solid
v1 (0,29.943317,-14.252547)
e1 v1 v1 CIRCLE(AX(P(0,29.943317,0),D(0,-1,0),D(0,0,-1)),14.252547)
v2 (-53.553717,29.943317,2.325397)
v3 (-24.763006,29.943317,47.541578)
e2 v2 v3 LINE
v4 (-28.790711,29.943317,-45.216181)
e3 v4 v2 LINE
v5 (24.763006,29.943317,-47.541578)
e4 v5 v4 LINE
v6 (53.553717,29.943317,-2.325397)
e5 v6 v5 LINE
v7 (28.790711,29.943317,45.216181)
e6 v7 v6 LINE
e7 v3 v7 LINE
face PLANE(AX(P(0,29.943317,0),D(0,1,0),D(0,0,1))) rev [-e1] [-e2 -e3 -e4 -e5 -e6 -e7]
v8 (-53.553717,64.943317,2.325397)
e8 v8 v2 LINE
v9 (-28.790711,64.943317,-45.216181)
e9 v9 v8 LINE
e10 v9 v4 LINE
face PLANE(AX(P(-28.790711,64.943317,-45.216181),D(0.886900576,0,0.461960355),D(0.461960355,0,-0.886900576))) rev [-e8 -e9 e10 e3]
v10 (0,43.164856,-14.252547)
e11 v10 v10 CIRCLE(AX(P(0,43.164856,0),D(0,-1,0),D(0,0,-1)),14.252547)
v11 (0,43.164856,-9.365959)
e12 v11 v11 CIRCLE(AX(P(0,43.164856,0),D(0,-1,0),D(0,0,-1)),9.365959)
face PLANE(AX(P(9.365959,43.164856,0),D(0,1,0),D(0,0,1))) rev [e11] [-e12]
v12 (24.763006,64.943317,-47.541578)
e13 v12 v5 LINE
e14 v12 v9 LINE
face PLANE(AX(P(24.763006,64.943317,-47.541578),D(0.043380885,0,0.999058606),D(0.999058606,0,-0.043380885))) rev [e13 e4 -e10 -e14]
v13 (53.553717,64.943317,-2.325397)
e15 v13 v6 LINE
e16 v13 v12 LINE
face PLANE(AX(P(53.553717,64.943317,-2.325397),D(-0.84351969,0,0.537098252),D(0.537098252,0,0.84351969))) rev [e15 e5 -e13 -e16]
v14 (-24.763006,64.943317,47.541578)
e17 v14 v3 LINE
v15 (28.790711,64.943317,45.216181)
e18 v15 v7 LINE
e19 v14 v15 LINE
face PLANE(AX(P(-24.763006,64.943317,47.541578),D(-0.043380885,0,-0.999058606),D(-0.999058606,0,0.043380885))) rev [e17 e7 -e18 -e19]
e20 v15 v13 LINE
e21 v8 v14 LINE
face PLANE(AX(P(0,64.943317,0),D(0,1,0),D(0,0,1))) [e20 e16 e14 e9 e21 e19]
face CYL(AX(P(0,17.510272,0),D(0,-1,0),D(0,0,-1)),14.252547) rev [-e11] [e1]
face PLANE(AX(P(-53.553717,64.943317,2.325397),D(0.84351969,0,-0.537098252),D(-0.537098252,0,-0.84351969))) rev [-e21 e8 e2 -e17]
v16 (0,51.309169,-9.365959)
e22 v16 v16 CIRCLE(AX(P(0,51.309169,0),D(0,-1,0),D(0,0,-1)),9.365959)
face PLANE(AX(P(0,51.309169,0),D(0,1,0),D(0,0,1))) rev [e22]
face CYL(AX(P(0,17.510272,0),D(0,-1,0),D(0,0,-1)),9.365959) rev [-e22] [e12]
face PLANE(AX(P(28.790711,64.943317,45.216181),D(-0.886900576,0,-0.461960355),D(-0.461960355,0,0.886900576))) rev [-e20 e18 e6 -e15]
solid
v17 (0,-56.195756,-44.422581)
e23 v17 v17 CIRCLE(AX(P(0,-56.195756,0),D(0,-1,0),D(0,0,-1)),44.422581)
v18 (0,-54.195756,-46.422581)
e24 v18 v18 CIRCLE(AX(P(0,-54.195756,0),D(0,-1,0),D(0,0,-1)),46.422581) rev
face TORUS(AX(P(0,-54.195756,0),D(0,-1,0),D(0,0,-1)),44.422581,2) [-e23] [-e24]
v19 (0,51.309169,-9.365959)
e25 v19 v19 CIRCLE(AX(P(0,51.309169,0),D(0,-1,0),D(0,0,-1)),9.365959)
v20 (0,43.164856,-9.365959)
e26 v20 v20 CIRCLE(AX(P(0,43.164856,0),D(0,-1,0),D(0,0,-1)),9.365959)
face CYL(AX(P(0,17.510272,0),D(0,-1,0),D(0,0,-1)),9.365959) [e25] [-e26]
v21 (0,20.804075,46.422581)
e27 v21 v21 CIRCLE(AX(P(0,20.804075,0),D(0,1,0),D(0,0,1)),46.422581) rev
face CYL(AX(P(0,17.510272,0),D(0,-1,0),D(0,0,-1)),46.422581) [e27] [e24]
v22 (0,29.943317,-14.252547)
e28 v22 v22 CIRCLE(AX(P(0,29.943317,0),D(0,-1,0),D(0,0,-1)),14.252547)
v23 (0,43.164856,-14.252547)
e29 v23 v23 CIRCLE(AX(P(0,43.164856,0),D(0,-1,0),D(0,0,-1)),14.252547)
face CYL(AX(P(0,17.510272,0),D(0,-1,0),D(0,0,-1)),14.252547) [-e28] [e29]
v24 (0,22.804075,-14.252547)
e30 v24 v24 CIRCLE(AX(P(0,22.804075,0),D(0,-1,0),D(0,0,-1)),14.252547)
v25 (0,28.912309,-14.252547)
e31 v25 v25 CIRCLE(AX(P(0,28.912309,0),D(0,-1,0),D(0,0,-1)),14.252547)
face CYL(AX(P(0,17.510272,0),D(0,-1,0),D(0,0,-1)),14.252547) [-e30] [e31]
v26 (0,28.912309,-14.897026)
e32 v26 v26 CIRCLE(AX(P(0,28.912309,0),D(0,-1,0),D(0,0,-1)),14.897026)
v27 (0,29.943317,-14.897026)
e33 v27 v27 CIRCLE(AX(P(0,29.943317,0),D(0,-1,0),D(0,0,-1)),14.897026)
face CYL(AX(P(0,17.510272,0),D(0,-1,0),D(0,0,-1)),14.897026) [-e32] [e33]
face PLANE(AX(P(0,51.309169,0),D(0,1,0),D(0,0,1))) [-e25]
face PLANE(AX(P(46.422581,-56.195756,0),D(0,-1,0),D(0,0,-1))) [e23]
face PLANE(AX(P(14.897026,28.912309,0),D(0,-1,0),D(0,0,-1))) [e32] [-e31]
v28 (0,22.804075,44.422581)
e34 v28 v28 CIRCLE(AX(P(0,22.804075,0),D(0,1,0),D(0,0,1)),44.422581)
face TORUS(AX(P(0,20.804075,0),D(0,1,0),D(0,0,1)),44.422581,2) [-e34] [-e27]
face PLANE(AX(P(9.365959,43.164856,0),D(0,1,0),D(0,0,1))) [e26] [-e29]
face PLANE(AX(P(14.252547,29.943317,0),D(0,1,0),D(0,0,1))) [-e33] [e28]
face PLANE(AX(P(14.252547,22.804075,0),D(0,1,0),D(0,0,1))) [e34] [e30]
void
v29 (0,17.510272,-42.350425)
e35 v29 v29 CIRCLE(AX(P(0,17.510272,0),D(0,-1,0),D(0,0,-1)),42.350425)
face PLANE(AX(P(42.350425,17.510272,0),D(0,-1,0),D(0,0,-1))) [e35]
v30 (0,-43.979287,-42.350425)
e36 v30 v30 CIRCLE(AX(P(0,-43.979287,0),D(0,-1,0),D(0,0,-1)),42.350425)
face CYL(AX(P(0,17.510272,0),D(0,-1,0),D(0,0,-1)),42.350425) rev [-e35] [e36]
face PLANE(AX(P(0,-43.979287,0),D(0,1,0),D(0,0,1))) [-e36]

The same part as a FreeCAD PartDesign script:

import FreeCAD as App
import Part
import Sketcher
from FreeCAD import Vector
Q = App.Units.Quantity


def edges_at(feature, points):
    """Names of the edges that pass closest to the given points."""
    edges = feature.Shape.Edges
    near = lambda p: min(range(len(edges)), key=lambda i: edges[i].distToShape(Part.Vertex(*p))[0])
    return sorted({f"Edge{near(p) + 1}" for p in points})

doc = App.newDocument("Part")
body = doc.addObject("PartDesign::Body", "Body")

sketch1 = body.newObject("Sketcher::SketchObject", "Sketch")
sketch1.AttachmentSupport = (doc.getObject("XY_Plane"), [""])
sketch1.MapMode = "FlatFace"
sketch1.addGeometry([
    Part.LineSegment(Vector(9.365959, 51.309169, 0), Vector(0, 51.309169, 0)),
    Part.LineSegment(Vector(0, 51.309169, 0), Vector(0, 17.510272, 0)),
    Part.LineSegment(Vector(0, 17.510272, 0), Vector(42.350425, 17.510272, 0)),
    Part.LineSegment(Vector(42.350425, 17.510272, 0), Vector(42.350425, -43.979287, 0)),
    Part.LineSegment(Vector(42.350425, -43.979287, 0), Vector(0, -43.979287, 0)),
    Part.LineSegment(Vector(0, -43.979287, 0), Vector(0, -56.195756, 0)),
    Part.LineSegment(Vector(0, -56.195756, 0), Vector(46.422581, -56.195756, 0)),
    Part.LineSegment(Vector(46.422581, -56.195756, 0), Vector(46.422581, 22.804075, 0)),
    Part.LineSegment(Vector(46.422581, 22.804075, 0), Vector(14.252547, 22.804075, 0)),
    Part.LineSegment(Vector(14.252547, 22.804075, 0), Vector(14.252547, 28.912309, 0)),
    Part.LineSegment(Vector(14.252547, 28.912309, 0), Vector(14.897026, 28.912309, 0)),
    Part.LineSegment(Vector(14.897026, 28.912309, 0), Vector(14.897026, 29.943317, 0)),
    Part.LineSegment(Vector(14.897026, 29.943317, 0), Vector(14.252547, 29.943317, 0)),
    Part.LineSegment(Vector(14.252547, 29.943317, 0), Vector(14.252547, 43.164856, 0)),
    Part.LineSegment(Vector(14.252547, 43.164856, 0), Vector(9.365959, 43.164856, 0)),
    Part.LineSegment(Vector(9.365959, 43.164856, 0), Vector(9.365959, 51.309169, 0)),
], False)
sketch1.addConstraint([
    Sketcher.Constraint("Coincident", 0, 2, 1, 1),
    Sketcher.Constraint("Coincident", 1, 2, 2, 1),
    Sketcher.Constraint("Coincident", 2, 2, 3, 1),
    Sketcher.Constraint("Coincident", 3, 2, 4, 1),
    Sketcher.Constraint("Coincident", 4, 2, 5, 1),
    Sketcher.Constraint("Coincident", 5, 2, 6, 1),
    Sketcher.Constraint("Coincident", 6, 2, 7, 1),
    Sketcher.Constraint("Coincident", 7, 2, 8, 1),
    Sketcher.Constraint("Coincident", 8, 2, 9, 1),
    Sketcher.Constraint("Coincident", 9, 2, 10, 1),
    Sketcher.Constraint("Coincident", 10, 2, 11, 1),
    Sketcher.Constraint("Coincident", 11, 2, 12, 1),
    Sketcher.Constraint("Coincident", 12, 2, 13, 1),
    Sketcher.Constraint("Coincident", 13, 2, 14, 1),
    Sketcher.Constraint("Coincident", 14, 2, 15, 1),
    Sketcher.Constraint("Coincident", 15, 2, 0, 1),
    Sketcher.Constraint("Horizontal", 0),
    Sketcher.Constraint("Vertical", 1),
    Sketcher.Constraint("Horizontal", 2),
    Sketcher.Constraint("Vertical", 3),
    Sketcher.Constraint("Horizontal", 4),
    Sketcher.Constraint("Vertical", 5),
    Sketcher.Constraint("Horizontal", 6),
    Sketcher.Constraint("Vertical", 7),
    Sketcher.Constraint("Horizontal", 8),
    Sketcher.Constraint("Vertical", 9),
    Sketcher.Constraint("Horizontal", 10),
    Sketcher.Constraint("Vertical", 11),
    Sketcher.Constraint("Horizontal", 12),
    Sketcher.Constraint("Vertical", 13),
    Sketcher.Constraint("Horizontal", 14),
    Sketcher.Constraint("Vertical", 15),
    Sketcher.Constraint("PointOnObject", 0, 2, -2),
    Sketcher.Constraint("PointOnObject", 4, 2, -2),
    Sketcher.Constraint("Vertical", 9, 2, 12, 2),
    Sketcher.Constraint("DistanceX", 0, 2, 0, 1, Q("9.365959 mm")),
    Sketcher.Constraint("DistanceX", 6, 1, 6, 2, Q("46.422581 mm")),
    Sketcher.Constraint("DistanceX", 10, 1, 10, 2, Q("0.64448 mm")),
    Sketcher.Constraint("DistanceY", 3, 2, 3, 1, Q("61.489559 mm")),
    Sketcher.Constraint("DistanceY", 5, 2, 5, 1, Q("12.216469 mm")),
    Sketcher.Constraint("DistanceY", 7, 1, 7, 2, Q("78.999831 mm")),
    Sketcher.Constraint("DistanceY", 13, 1, 13, 2, Q("13.221539 mm")),
    Sketcher.Constraint("DistanceX", 10, 2, 2, 2, Q("27.453399 mm")),
    Sketcher.Constraint("DistanceX", 2, 1, 2, 2, Q("42.350425 mm")),
    Sketcher.Constraint("DistanceY", 1, 2, 1, 1, Q("33.798897 mm")),
    Sketcher.Constraint("DistanceY", 9, 1, 9, 2, Q("6.108234 mm")),
    Sketcher.Constraint("DistanceY", 11, 1, 11, 2, Q("1.031008 mm")),
    Sketcher.Constraint("DistanceY", -1, 1, 0, 2, Q("51.309169 mm")),
])
revolution = body.newObject("PartDesign::Revolution", "Revolution")
revolution.Profile = sketch1
revolution.ReferenceAxis = (sketch1, ["V_Axis"])
revolution.Angle = 360
doc.recompute()

fillet = body.newObject("PartDesign::Fillet", "Fillet")
fillet.Base = (revolution, edges_at(revolution, [(-46.423, -56.196, 0), (-46.423, 22.804, 0)]))
fillet.Radius = 2
body2 = doc.addObject("PartDesign::Body", "Body001")

sketch2 = body2.newObject("Sketcher::SketchObject", "Sketch001")
sketch2.AttachmentSupport = (doc.getObject("XZ_Plane001"), [""])
sketch2.MapMode = "FlatFace"
sketch2.AttachmentOffset = App.Placement(Vector(0, 0, -29.943317), App.Rotation())
sketch2.addGeometry([
    Part.LineSegment(Vector(28.790711, 45.216181, 0), Vector(53.553717, -2.325397, 0)),
    Part.LineSegment(Vector(53.553717, -2.325397, 0), Vector(24.763006, -47.541578, 0)),
    Part.LineSegment(Vector(24.763006, -47.541578, 0), Vector(-28.790711, -45.216181, 0)),
    Part.LineSegment(Vector(-28.790711, -45.216181, 0), Vector(-53.553717, 2.325397, 0)),
    Part.LineSegment(Vector(-53.553717, 2.325397, 0), Vector(-24.763006, 47.541578, 0)),
    Part.LineSegment(Vector(-24.763006, 47.541578, 0), Vector(28.790711, 45.216181, 0)),
], False)
sketch2.addConstraint([
    Sketcher.Constraint("Coincident", 0, 2, 1, 1),
    Sketcher.Constraint("Coincident", 1, 2, 2, 1),
    Sketcher.Constraint("Coincident", 2, 2, 3, 1),
    Sketcher.Constraint("Coincident", 3, 2, 4, 1),
    Sketcher.Constraint("Coincident", 4, 2, 5, 1),
    Sketcher.Constraint("Coincident", 5, 2, 0, 1),
    Sketcher.Constraint("Symmetric", 0, 2, 3, 2, -1, 1),
    Sketcher.Constraint("Symmetric", 1, 2, 4, 2, -1, 1),
    Sketcher.Constraint("Symmetric", 2, 2, 5, 2, -1, 1),
    Sketcher.Constraint("Equal", 0, 1),
    Sketcher.Constraint("Equal", 1, 2),
    Sketcher.Constraint("Distance", 0, Q("53.604179 mm")),
    Sketcher.Constraint("DistanceX", 2, 2, -1, 1, Q("28.790711 mm")),
    Sketcher.Constraint("DistanceY", 2, 2, -1, 1, Q("45.216181 mm")),
    Sketcher.Constraint("DistanceX", 1, 2, 0, 2, Q("28.790711 mm")),
])
pad1 = body2.newObject("PartDesign::Pad", "Pad")
pad1.Profile = sketch2
pad1.Length = 35
pad1.Reversed = True

sketch3 = body2.newObject("Sketcher::SketchObject", "Sketch002")
sketch3.AttachmentSupport = (doc.getObject("XY_Plane001"), [""])
sketch3.MapMode = "FlatFace"
sketch3.addGeometry([
    Part.LineSegment(Vector(9.365959, 51.309169, 0), Vector(0, 51.309169, 0)),
    Part.LineSegment(Vector(0, 51.309169, 0), Vector(0, 17.510272, 0)),
    Part.LineSegment(Vector(0, 17.510272, 0), Vector(42.350425, 17.510272, 0)),
    Part.LineSegment(Vector(42.350425, 17.510272, 0), Vector(42.350425, -43.979287, 0)),
    Part.LineSegment(Vector(42.350425, -43.979287, 0), Vector(0, -43.979287, 0)),
    Part.LineSegment(Vector(0, -43.979287, 0), Vector(0, -56.195756, 0)),
    Part.LineSegment(Vector(0, -56.195756, 0), Vector(46.422581, -56.195756, 0)),
    Part.LineSegment(Vector(46.422581, -56.195756, 0), Vector(46.422581, 22.804075, 0)),
    Part.LineSegment(Vector(46.422581, 22.804075, 0), Vector(14.252547, 22.804075, 0)),
    Part.LineSegment(Vector(14.252547, 22.804075, 0), Vector(14.252547, 28.912309, 0)),
    Part.LineSegment(Vector(14.252547, 28.912309, 0), Vector(14.897026, 28.912309, 0)),
    Part.LineSegment(Vector(14.897026, 28.912309, 0), Vector(14.897026, 29.943317, 0)),
    Part.LineSegment(Vector(14.897026, 29.943317, 0), Vector(14.252547, 29.943317, 0)),
    Part.LineSegment(Vector(14.252547, 29.943317, 0), Vector(14.252547, 43.164856, 0)),
    Part.LineSegment(Vector(14.252547, 43.164856, 0), Vector(9.365959, 43.164856, 0)),
    Part.LineSegment(Vector(9.365959, 43.164856, 0), Vector(9.365959, 51.309169, 0)),
], False)
sketch3.addConstraint([
    Sketcher.Constraint("Coincident", 0, 2, 1, 1),
    Sketcher.Constraint("Coincident", 1, 2, 2, 1),
    Sketcher.Constraint("Coincident", 2, 2, 3, 1),
    Sketcher.Constraint("Coincident", 3, 2, 4, 1),
    Sketcher.Constraint("Coincident", 4, 2, 5, 1),
    Sketcher.Constraint("Coincident", 5, 2, 6, 1),
    Sketcher.Constraint("Coincident", 6, 2, 7, 1),
    Sketcher.Constraint("Coincident", 7, 2, 8, 1),
    Sketcher.Constraint("Coincident", 8, 2, 9, 1),
    Sketcher.Constraint("Coincident", 9, 2, 10, 1),
    Sketcher.Constraint("Coincident", 10, 2, 11, 1),
    Sketcher.Constraint("Coincident", 11, 2, 12, 1),
    Sketcher.Constraint("Coincident", 12, 2, 13, 1),
    Sketcher.Constraint("Coincident", 13, 2, 14, 1),
    Sketcher.Constraint("Coincident", 14, 2, 15, 1),
    Sketcher.Constraint("Coincident", 15, 2, 0, 1),
    Sketcher.Constraint("Horizontal", 0),
    Sketcher.Constraint("Vertical", 1),
    Sketcher.Constraint("Horizontal", 2),
    Sketcher.Constraint("Vertical", 3),
    Sketcher.Constraint("Horizontal", 4),
    Sketcher.Constraint("Vertical", 5),
    Sketcher.Constraint("Horizontal", 6),
    Sketcher.Constraint("Vertical", 7),
    Sketcher.Constraint("Horizontal", 8),
    Sketcher.Constraint("Vertical", 9),
    Sketcher.Constraint("Horizontal", 10),
    Sketcher.Constraint("Vertical", 11),
    Sketcher.Constraint("Horizontal", 12),
    Sketcher.Constraint("Vertical", 13),
    Sketcher.Constraint("Horizontal", 14),
    Sketcher.Constraint("Vertical", 15),
    Sketcher.Constraint("PointOnObject", 0, 2, -2),
    Sketcher.Constraint("PointOnObject", 4, 2, -2),
    Sketcher.Constraint("Vertical", 9, 2, 12, 2),
    Sketcher.Constraint("DistanceX", 0, 2, 0, 1, Q("9.365959 mm")),
    Sketcher.Constraint("DistanceX", 6, 1, 6, 2, Q("46.422581 mm")),
    Sketcher.Constraint("DistanceX", 10, 1, 10, 2, Q("0.64448 mm")),
    Sketcher.Constraint("DistanceY", 3, 2, 3, 1, Q("61.489559 mm")),
    Sketcher.Constraint("DistanceY", 5, 2, 5, 1, Q("12.216469 mm")),
    Sketcher.Constraint("DistanceY", 7, 1, 7, 2, Q("78.999831 mm")),
    Sketcher.Constraint("DistanceY", 13, 1, 13, 2, Q("13.221539 mm")),
    Sketcher.Constraint("DistanceX", 10, 2, 2, 2, Q("27.453399 mm")),
    Sketcher.Constraint("DistanceX", 2, 1, 2, 2, Q("42.350425 mm")),
    Sketcher.Constraint("DistanceY", 1, 2, 1, 1, Q("33.798897 mm")),
    Sketcher.Constraint("DistanceY", 9, 1, 9, 2, Q("6.108234 mm")),
    Sketcher.Constraint("DistanceY", 11, 1, 11, 2, Q("1.031008 mm")),
    Sketcher.Constraint("DistanceY", -1, 1, 0, 2, Q("51.309169 mm")),
])
groove = body2.newObject("PartDesign::Groove", "Groove")
groove.Profile = sketch3
groove.ReferenceAxis = (sketch3, ["V_Axis"])
groove.Angle = 360

doc.recompute()
